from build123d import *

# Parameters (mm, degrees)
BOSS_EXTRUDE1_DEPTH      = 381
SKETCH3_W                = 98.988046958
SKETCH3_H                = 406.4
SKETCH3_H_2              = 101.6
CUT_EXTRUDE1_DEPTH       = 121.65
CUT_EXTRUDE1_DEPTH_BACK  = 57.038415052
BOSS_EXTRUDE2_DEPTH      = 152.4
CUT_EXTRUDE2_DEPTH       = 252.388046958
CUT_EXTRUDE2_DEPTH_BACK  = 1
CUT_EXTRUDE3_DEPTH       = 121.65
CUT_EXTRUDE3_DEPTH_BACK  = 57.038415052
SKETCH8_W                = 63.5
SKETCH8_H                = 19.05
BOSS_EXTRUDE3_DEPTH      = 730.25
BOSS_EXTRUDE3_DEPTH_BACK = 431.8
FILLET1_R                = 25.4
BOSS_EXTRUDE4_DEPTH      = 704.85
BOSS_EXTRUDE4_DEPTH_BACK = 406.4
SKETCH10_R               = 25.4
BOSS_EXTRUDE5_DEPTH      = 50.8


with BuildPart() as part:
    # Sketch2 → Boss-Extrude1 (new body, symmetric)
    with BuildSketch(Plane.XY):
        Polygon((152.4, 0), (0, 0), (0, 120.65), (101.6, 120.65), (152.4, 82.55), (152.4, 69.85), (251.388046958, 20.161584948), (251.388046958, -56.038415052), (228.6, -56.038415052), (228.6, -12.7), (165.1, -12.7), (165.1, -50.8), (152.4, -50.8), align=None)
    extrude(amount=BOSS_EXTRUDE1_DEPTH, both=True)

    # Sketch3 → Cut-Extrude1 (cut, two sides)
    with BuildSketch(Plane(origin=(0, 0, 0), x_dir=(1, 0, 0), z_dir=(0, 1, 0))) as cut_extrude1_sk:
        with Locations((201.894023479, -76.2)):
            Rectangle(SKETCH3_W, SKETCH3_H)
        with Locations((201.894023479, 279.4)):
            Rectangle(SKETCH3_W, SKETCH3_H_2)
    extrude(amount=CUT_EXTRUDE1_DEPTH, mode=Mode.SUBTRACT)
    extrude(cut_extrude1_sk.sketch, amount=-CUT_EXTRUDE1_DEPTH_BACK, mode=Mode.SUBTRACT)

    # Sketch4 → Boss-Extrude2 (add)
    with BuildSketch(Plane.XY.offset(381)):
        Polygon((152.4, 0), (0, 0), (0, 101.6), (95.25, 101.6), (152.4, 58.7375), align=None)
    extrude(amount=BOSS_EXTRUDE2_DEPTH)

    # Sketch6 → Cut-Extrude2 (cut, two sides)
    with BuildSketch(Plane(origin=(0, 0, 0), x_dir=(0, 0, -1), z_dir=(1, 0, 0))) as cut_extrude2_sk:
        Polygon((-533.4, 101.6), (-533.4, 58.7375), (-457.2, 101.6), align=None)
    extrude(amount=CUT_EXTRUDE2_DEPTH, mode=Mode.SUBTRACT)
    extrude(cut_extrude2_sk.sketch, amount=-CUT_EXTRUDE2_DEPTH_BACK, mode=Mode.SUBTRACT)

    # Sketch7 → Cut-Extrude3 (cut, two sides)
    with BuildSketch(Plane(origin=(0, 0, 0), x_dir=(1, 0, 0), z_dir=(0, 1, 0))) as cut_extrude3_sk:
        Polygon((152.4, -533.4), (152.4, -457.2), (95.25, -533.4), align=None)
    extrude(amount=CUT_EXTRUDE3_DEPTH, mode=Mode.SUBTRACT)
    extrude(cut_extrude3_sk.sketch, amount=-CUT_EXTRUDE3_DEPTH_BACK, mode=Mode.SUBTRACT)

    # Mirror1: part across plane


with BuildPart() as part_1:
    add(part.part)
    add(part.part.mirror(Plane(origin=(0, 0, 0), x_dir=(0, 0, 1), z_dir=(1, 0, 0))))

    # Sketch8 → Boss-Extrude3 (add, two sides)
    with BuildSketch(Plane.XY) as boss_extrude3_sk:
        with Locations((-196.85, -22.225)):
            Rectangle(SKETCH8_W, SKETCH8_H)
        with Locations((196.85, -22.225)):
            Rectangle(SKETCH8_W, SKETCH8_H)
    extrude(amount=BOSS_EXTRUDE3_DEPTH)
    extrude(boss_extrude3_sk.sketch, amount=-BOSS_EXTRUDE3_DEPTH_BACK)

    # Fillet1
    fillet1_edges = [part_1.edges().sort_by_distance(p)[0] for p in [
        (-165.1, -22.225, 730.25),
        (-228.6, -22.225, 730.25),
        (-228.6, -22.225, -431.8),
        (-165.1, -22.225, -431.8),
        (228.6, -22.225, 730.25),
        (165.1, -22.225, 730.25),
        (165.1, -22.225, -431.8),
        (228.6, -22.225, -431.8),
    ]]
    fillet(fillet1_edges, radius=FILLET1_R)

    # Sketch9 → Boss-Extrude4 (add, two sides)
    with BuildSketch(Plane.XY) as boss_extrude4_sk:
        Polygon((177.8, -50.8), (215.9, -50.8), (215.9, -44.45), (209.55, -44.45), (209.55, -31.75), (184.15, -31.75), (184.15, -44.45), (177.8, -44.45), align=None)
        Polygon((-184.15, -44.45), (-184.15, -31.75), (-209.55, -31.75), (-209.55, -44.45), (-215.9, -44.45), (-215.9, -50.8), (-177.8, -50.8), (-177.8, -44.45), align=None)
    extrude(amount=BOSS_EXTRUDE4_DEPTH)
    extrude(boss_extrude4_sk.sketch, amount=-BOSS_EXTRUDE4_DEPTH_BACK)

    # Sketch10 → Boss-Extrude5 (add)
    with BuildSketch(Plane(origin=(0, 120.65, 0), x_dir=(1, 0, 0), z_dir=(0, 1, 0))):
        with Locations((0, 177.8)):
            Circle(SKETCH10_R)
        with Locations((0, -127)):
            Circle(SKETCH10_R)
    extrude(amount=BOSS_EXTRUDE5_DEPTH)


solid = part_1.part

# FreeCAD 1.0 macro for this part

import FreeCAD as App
import Part
import Sketcher
Q = App.Units.Quantity


def edges_at(feature, points):
    """Names of the edges that pass closest to the given points."""
    edges = feature.Shape.Edges
    near = lambda p: min(range(len(edges)), key=lambda i: edges[i].distToShape(Part.Vertex(*p))[0])
    return sorted({f"Edge{near(p) + 1}" for p in points})

doc = App.newDocument("Part")
body = doc.addObject("PartDesign::Body", "Body")

sketch1 = doc.addObject("Sketcher::SketchObject", "Sketch")
body.addObject(sketch1)
sketch1.AttachmentSupport = (doc.XY_Plane, [""])
sketch1.MapMode = "FlatFace"
sketch1.addGeometry([
    Part.LineSegment(App.Vector(0, 0, 0), App.Vector(152, 0, 0)),
    Part.LineSegment(App.Vector(152, 0, 0), App.Vector(152, -51, 0)),
    Part.LineSegment(App.Vector(152, -51, 0), App.Vector(165, -51, 0)),
    Part.LineSegment(App.Vector(165, -51, 0), App.Vector(165, -13, 0)),
    Part.LineSegment(App.Vector(165, -13, 0), App.Vector(229, -13, 0)),
    Part.LineSegment(App.Vector(229, -13, 0), App.Vector(229, -56, 0)),
    Part.LineSegment(App.Vector(229, -56, 0), App.Vector(251, -56, 0)),
    Part.LineSegment(App.Vector(251, -56, 0), App.Vector(251, 20, 0)),
    Part.LineSegment(App.Vector(251, 20, 0), App.Vector(152, 70, 0)),
    Part.LineSegment(App.Vector(152, 70, 0), App.Vector(152, 83, 0)),
    Part.LineSegment(App.Vector(152, 83, 0), App.Vector(102, 121, 0)),
    Part.LineSegment(App.Vector(102, 121, 0), App.Vector(0, 121, 0)),
    Part.LineSegment(App.Vector(0, 121, 0), App.Vector(0, 0, 0)),
], False)
sketch1.addConstraint([
    Sketcher.Constraint("Coincident", 0, 2, 1, 1),
    Sketcher.Constraint("Coincident", 1, 2, 2, 1),
    Sketcher.Constraint("Coincident", 2, 2, 3, 1),
    Sketcher.Constraint("Coincident", 3, 2, 4, 1),
    Sketcher.Constraint("Coincident", 4, 2, 5, 1),
    Sketcher.Constraint("Coincident", 5, 2, 6, 1),
    Sketcher.Constraint("Coincident", 6, 2, 7, 1),
    Sketcher.Constraint("Coincident", 7, 2, 8, 1),
    Sketcher.Constraint("Coincident", 8, 2, 9, 1),
    Sketcher.Constraint("Coincident", 9, 2, 10, 1),
    Sketcher.Constraint("Coincident", 10, 2, 11, 1),
    Sketcher.Constraint("Coincident", 11, 2, 12, 1),
    Sketcher.Constraint("Coincident", 12, 2, 0, 1),
    Sketcher.Constraint("Horizontal", 0),
    Sketcher.Constraint("Vertical", 1),
    Sketcher.Constraint("Horizontal", 2),
    Sketcher.Constraint("Vertical", 3),
    Sketcher.Constraint("Horizontal", 4),
    Sketcher.Constraint("Vertical", 5),
    Sketcher.Constraint("Horizontal", 6),
    Sketcher.Constraint("Vertical", 7),
    Sketcher.Constraint("Vertical", 9),
    Sketcher.Constraint("Horizontal", 11),
    Sketcher.Constraint("Vertical", 12),
    Sketcher.Constraint("Coincident", 12, 2, -1, 1),
    Sketcher.Constraint("Vertical", 1, 2, 8, 2),
    Sketcher.Constraint("Equal", 2, 9),
    Sketcher.Constraint("DistanceX", 0, 1, 0, 2, Q("6 in")),
    Sketcher.Constraint("DistanceX", 11, 2, 11, 1, Q("4 in")),
    Sketcher.Constraint("DistanceY", 1, 2, 1, 1, Q("2 in")),
    Sketcher.Constraint("DistanceY", 7, 1, 7, 2, Q("3 in")),
    Sketcher.Constraint("DistanceX", 2, 1, 2, 2, Q("0.5 in")),
    Sketcher.Constraint("DistanceX", 4, 1, 4, 2, Q("2.5 in")),
    Sketcher.Constraint("DistanceY", 3, 1, 3, 2, Q("1.5 in")),
    Sketcher.Constraint("DistanceY", 8, 2, 10, 2, Q("2 in")),
    Sketcher.Constraint("DistanceY", 12, 2, 12, 1, Q("4.75 in")),
    Sketcher.Constraint("DistanceX", 6, 1, 6, 2, Q("22.788047 mm")),
    Sketcher.Constraint("DistanceY", 5, 2, 5, 1, Q("43.338415 mm")),
])
pad1 = doc.addObject("PartDesign::Pad", "Pad")
body.addObject(pad1)
pad1.Profile = sketch1
pad1.Length = Q("30 in")
pad1.Midplane = True

sketch2 = doc.addObject("Sketcher::SketchObject", "Sketch001")
body.addObject(sketch2)
sketch2.AttachmentSupport = (doc.XZ_Plane, [""])
sketch2.MapMode = "FlatFace"
sketch2.addGeometry([
    Part.LineSegment(App.Vector(152, -127, 0), App.Vector(152, 279, 0)),
    Part.LineSegment(App.Vector(152, 279, 0), App.Vector(251, 279, 0)),
    Part.LineSegment(App.Vector(251, 279, 0), App.Vector(251, -127, 0)),
    Part.LineSegment(App.Vector(251, -127, 0), App.Vector(152, -127, 0)),
    Part.LineSegment(App.Vector(152, -330, 0), App.Vector(152, -229, 0)),
    Part.LineSegment(App.Vector(152, -229, 0), App.Vector(251, -229, 0)),
    Part.LineSegment(App.Vector(251, -229, 0), App.Vector(251, -330, 0)),
    Part.LineSegment(App.Vector(251, -330, 0), App.Vector(152, -330, 0)),
], False)
sketch2.addConstraint([
    Sketcher.Constraint("Coincident", 0, 2, 1, 1),
    Sketcher.Constraint("Coincident", 1, 2, 2, 1),
    Sketcher.Constraint("Coincident", 2, 2, 3, 1),
    Sketcher.Constraint("Coincident", 3, 2, 0, 1),
    Sketcher.Constraint("Coincident", 4, 2, 5, 1),
    Sketcher.Constraint("Coincident", 5, 2, 6, 1),
    Sketcher.Constraint("Coincident", 6, 2, 7, 1),
    Sketcher.Constraint("Coincident", 7, 2, 4, 1),
    Sketcher.Constraint("Vertical", 0),
    Sketcher.Constraint("Horizontal", 1),
    Sketcher.Constraint("Vertical", 2),
    Sketcher.Constraint("Horizontal", 3),
    Sketcher.Constraint("Vertical", 4),
    Sketcher.Constraint("Horizontal", 5),
    Sketcher.Constraint("Vertical", 6),
    Sketcher.Constraint("Horizontal", 7),
    Sketcher.Constraint("Vertical", 3, 2, 4, 2),
    Sketcher.Constraint("Vertical", 2, 2, 5, 2),
    Sketcher.Constraint("DistanceY", 0, 1, 0, 2, Q("16 in")),
    Sketcher.Constraint("DistanceY", 4, 1, 4, 2, Q("4 in")),
    Sketcher.Constraint("DistanceX", -1, 1, 0, 2, Q("6 in")),
    Sketcher.Constraint("DistanceY", -1, 1, 0, 2, Q("11 in")),
    Sketcher.Constraint("DistanceY", 4, 2, -1, 1, Q("9 in")),
    Sketcher.Constraint("DistanceX", 1, 1, 1, 2, Q("98.988047 mm")),
])
pocket1 = doc.addObject("PartDesign::Pocket", "Pocket")
body.addObject(pocket1)
pocket1.Profile = sketch2
pocket1.Type = "ThroughAll"
pocket1.Midplane = True

sketch3 = doc.addObject("Sketcher::SketchObject", "Sketch002")
body.addObject(sketch3)
sketch3.AttachmentSupport = (doc.XY_Plane, [""])
sketch3.MapMode = "FlatFace"
sketch3.AttachmentOffset = App.Placement(App.Vector(0, 0, 15 * 25.4), App.Rotation())
sketch3.addGeometry([
    Part.LineSegment(App.Vector(0, 0, 0), App.Vector(152, 0, 0)),
    Part.LineSegment(App.Vector(152, 0, 0), App.Vector(152, 59, 0)),
    Part.LineSegment(App.Vector(152, 59, 0), App.Vector(95, 102, 0)),
    Part.LineSegment(App.Vector(95, 102, 0), App.Vector(0, 102, 0)),
    Part.LineSegment(App.Vector(0, 102, 0), App.Vector(0, 0, 0)),
], False)
sketch3.addConstraint([
    Sketcher.Constraint("Coincident", 0, 2, 1, 1),
    Sketcher.Constraint("Coincident", 1, 2, 2, 1),
    Sketcher.Constraint("Coincident", 2, 2, 3, 1),
    Sketcher.Constraint("Coincident", 3, 2, 4, 1),
    Sketcher.Constraint("Coincident", 4, 2, 0, 1),
    Sketcher.Constraint("Horizontal", 0),
    Sketcher.Constraint("Vertical", 1),
    Sketcher.Constraint("Horizontal", 3),
    Sketcher.Constraint("Vertical", 4),
    Sketcher.Constraint("Coincident", 4, 2, -1, 1),
    Sketcher.Constraint("DistanceX", 0, 1, 0, 2, Q("6 in")),
    Sketcher.Constraint("DistanceY", 4, 2, 4, 1, Q("4 in")),
    Sketcher.Constraint("DistanceX", 3, 2, 3, 1, Q("3.75 in")),
    Sketcher.Constraint("DistanceY", 1, 1, 1, 2, Q("2.3125 in")),
])
pad2 = doc.addObject("PartDesign::Pad", "Pad001")
body.addObject(pad2)
pad2.Profile = sketch3
pad2.Length = Q("6 in")

sketch4 = doc.addObject("Sketcher::SketchObject", "Sketch003")
body.addObject(sketch4)
sketch4.AttachmentSupport = (doc.YZ_Plane, [""])
sketch4.MapMode = "FlatFace"
sketch4.addGeometry([
    Part.LineSegment(App.Vector(102, 533, 0), App.Vector(59, 533, 0)),
    Part.LineSegment(App.Vector(59, 533, 0), App.Vector(102, 457, 0)),
    Part.LineSegment(App.Vector(102, 457, 0), App.Vector(102, 533, 0)),
], False)
sketch4.addConstraint([
    Sketcher.Constraint("Coincident", 0, 2, 1, 1),
    Sketcher.Constraint("Coincident", 1, 2, 2, 1),
    Sketcher.Constraint("Coincident", 2, 2, 0, 1),
    Sketcher.Constraint("Horizontal", 0),
    Sketcher.Constraint("Vertical", 2),
    Sketcher.Constraint("DistanceY", 2, 1, 2, 2, Q("3 in")),
    Sketcher.Constraint("DistanceY", -1, 1, 0, 2, Q("21 in")),
    Sketcher.Constraint("DistanceX", -1, 1, 1, 2, Q("4 in")),
    Sketcher.Constraint("DistanceX", 0, 2, 0, 1, Q("1.6875 in")),
])
pocket2 = doc.addObject("PartDesign::Pocket", "Pocket001")
body.addObject(pocket2)
pocket2.Profile = sketch4
pocket2.Type = "ThroughAll"
pocket2.Midplane = True

sketch5 = doc.addObject("Sketcher::SketchObject", "Sketch004")
body.addObject(sketch5)
sketch5.AttachmentSupport = (doc.XZ_Plane, [""])
sketch5.MapMode = "FlatFace"
sketch5.addGeometry([
    Part.LineSegment(App.Vector(152, 533, 0), App.Vector(152, 457, 0)),
    Part.LineSegment(App.Vector(152, 457, 0), App.Vector(95, 533, 0)),
    Part.LineSegment(App.Vector(95, 533, 0), App.Vector(152, 533, 0)),
], False)
sketch5.addConstraint([
    Sketcher.Constraint("Coincident", 0, 2, 1, 1),
    Sketcher.Constraint("Coincident", 1, 2, 2, 1),
    Sketcher.Constraint("Coincident", 2, 2, 0, 1),
    Sketcher.Constraint("Vertical", 0),
    Sketcher.Constraint("Horizontal", 2),
    Sketcher.Constraint("DistanceY", 0, 2, 0, 1, Q("3 in")),
    Sketcher.Constraint("DistanceX", -1, 1, 0, 2, Q("6 in")),
    Sketcher.Constraint("DistanceY", -1, 1, 0, 2, Q("18 in")),
    Sketcher.Constraint("DistanceX", 2, 1, 2, 2, Q("2.25 in")),
])
pocket3 = doc.addObject("PartDesign::Pocket", "Pocket002")
body.addObject(pocket3)
pocket3.Profile = sketch5
pocket3.Type = "ThroughAll"
pocket3.Midplane = True
body2 = doc.addObject("PartDesign::Body", "Body001")
doc.recompute()

body2.BaseFeature = body
doc.recompute()

mirroring = doc.addObject("Part::Mirroring", "Mirroring")
mirroring.Source = body
mirroring.Base = App.Vector(0, 0, 0)
mirroring.Normal = App.Vector(1, 0, 0)
body3 = doc.addObject("PartDesign::Body", "Body002")
body3.BaseFeature = mirroring
boolean = doc.addObject("PartDesign::Boolean", "Boolean")
body2.addObject(boolean)
boolean.Type = "Fuse"
boolean.addObjects([body3])
doc.recompute()

sketch6 = doc.addObject("Sketcher::SketchObject", "Sketch005")
body2.addObject(sketch6)
sketch6.AttachmentSupport = (doc.getObject("XY_Plane001"), [""])
sketch6.MapMode = "FlatFace"
sketch6.addGeometry([
    Part.LineSegment(App.Vector(-229, -13, 0), App.Vector(-229, -32, 0)),
    Part.LineSegment(App.Vector(-229, -32, 0), App.Vector(-165, -32, 0)),
    Part.LineSegment(App.Vector(-165, -32, 0), App.Vector(-165, -13, 0)),
    Part.LineSegment(App.Vector(-165, -13, 0), App.Vector(-229, -13, 0)),
    Part.LineSegment(App.Vector(165, -13, 0), App.Vector(165, -32, 0)),
    Part.LineSegment(App.Vector(165, -32, 0), App.Vector(229, -32, 0)),
    Part.LineSegment(App.Vector(229, -32, 0), App.Vector(229, -13, 0)),
    Part.LineSegment(App.Vector(229, -13, 0), App.Vector(165, -13, 0)),
], False)
sketch6.addConstraint([
    Sketcher.Constraint("Coincident", 0, 2, 1, 1),
    Sketcher.Constraint("Coincident", 1, 2, 2, 1),
    Sketcher.Constraint("Coincident", 2, 2, 3, 1),
    Sketcher.Constraint("Coincident", 3, 2, 0, 1),
    Sketcher.Constraint("Coincident", 4, 2, 5, 1),
    Sketcher.Constraint("Coincident", 5, 2, 6, 1),
    Sketcher.Constraint("Coincident", 6, 2, 7, 1),
    Sketcher.Constraint("Coincident", 7, 2, 4, 1),
    Sketcher.Constraint("Vertical", 0),
    Sketcher.Constraint("Horizontal", 1),
    Sketcher.Constraint("Vertical", 2),
    Sketcher.Constraint("Horizontal", 3),
    Sketcher.Constraint("Vertical", 4),
    Sketcher.Constraint("Horizontal", 5),
    Sketcher.Constraint("Vertical", 6),
    Sketcher.Constraint("Horizontal", 7),
    Sketcher.Constraint("Symmetric", 1, 2, 4, 2, -2),
    Sketcher.Constraint("Symmetric", 3, 2, 6, 2, -2),
    Sketcher.Constraint("DistanceX", 1, 1, 1, 2, Q("2.5 in")),
    Sketcher.Constraint("DistanceX", 0, 2, -1, 1, Q("9 in")),
    Sketcher.Constraint("DistanceY", 0, 2, 0, 1, Q("0.75 in")),
    Sketcher.Constraint("DistanceY", 2, 2, -1, 1, Q("0.5 in")),
])
pad3 = doc.addObject("PartDesign::Pad", "Pad002")
body2.addObject(pad3)
pad3.Profile = sketch6
pad3.Type = "TwoLengths"
pad3.Length = Q("28.75 in")
pad3.Length2 = Q("17 in")
doc.recompute()

fillet = doc.addObject("PartDesign::Fillet", "Fillet")
body2.addObject(fillet)
fillet.Base = (pad3, edges_at(pad3, [
    (-165.1, -22.225, 730.25),
    (-228.6, -22.225, 730.25),
    (-228.6, -22.225, -431.8),
    (-165.1, -22.225, -431.8),
    (228.6, -22.225, 730.25),
    (165.1, -22.225, 730.25),
    (165.1, -22.225, -431.8),
    (228.6, -22.225, -431.8),
]))
fillet.Radius = Q("1 in")

sketch7 = doc.addObject("Sketcher::SketchObject", "Sketch006")
body2.addObject(sketch7)
sketch7.AttachmentSupport = (doc.getObject("XY_Plane001"), [""])
sketch7.MapMode = "FlatFace"
sketch7.addGeometry([
    Part.LineSegment(App.Vector(178, -51, 0), App.Vector(216, -51, 0)),
    Part.LineSegment(App.Vector(216, -51, 0), App.Vector(216, -44, 0)),
    Part.LineSegment(App.Vector(216, -44, 0), App.Vector(210, -44, 0)),
    Part.LineSegment(App.Vector(210, -44, 0), App.Vector(210, -32, 0)),
    Part.LineSegment(App.Vector(210, -32, 0), App.Vector(184, -32, 0)),
    Part.LineSegment(App.Vector(184, -32, 0), App.Vector(184, -44, 0)),
    Part.LineSegment(App.Vector(184, -44, 0), App.Vector(178, -44, 0)),
    Part.LineSegment(App.Vector(178, -44, 0), App.Vector(178, -51, 0)),
    Part.LineSegment(App.Vector(-184, -44, 0), App.Vector(-184, -32, 0)),
    Part.LineSegment(App.Vector(-184, -32, 0), App.Vector(-210, -32, 0)),
    Part.LineSegment(App.Vector(-210, -32, 0), App.Vector(-210, -44, 0)),
    Part.LineSegment(App.Vector(-210, -44, 0), App.Vector(-216, -44, 0)),
    Part.LineSegment(App.Vector(-216, -44, 0), App.Vector(-216, -51, 0)),
    Part.LineSegment(App.Vector(-216, -51, 0), App.Vector(-178, -51, 0)),
    Part.LineSegment(App.Vector(-178, -51, 0), App.Vector(-178, -44, 0)),
    Part.LineSegment(App.Vector(-178, -44, 0), App.Vector(-184, -44, 0)),
], False)
sketch7.addConstraint([
    Sketcher.Constraint("Coincident", 0, 2, 1, 1),
    Sketcher.Constraint("Coincident", 1, 2, 2, 1),
    Sketcher.Constraint("Coincident", 2, 2, 3, 1),
    Sketcher.Constraint("Coincident", 3, 2, 4, 1),
    Sketcher.Constraint("Coincident", 4, 2, 5, 1),
    Sketcher.Constraint("Coincident", 5, 2, 6, 1),
    Sketcher.Constraint("Coincident", 6, 2, 7, 1),
    Sketcher.Constraint("Coincident", 7, 2, 0, 1),
    Sketcher.Constraint("Coincident", 8, 2, 9, 1),
    Sketcher.Constraint("Coincident", 9, 2, 10, 1),
    Sketcher.Constraint("Coincident", 10, 2, 11, 1),
    Sketcher.Constraint("Coincident", 11, 2, 12, 1),
    Sketcher.Constraint("Coincident", 12, 2, 13, 1),
    Sketcher.Constraint("Coincident", 13, 2, 14, 1),
    Sketcher.Constraint("Coincident", 14, 2, 15, 1),
    Sketcher.Constraint("Coincident", 15, 2, 8, 1),
    Sketcher.Constraint("Horizontal", 0),
    Sketcher.Constraint("Vertical", 1),
    Sketcher.Constraint("Horizontal", 2),
    Sketcher.Constraint("Vertical", 3),
    Sketcher.Constraint("Horizontal", 4),
    Sketcher.Constraint("Vertical", 5),
    Sketcher.Constraint("Horizontal", 6),
    Sketcher.Constraint("Vertical", 7),
    Sketcher.Constraint("Vertical", 8),
    Sketcher.Constraint("Horizontal", 9),
    Sketcher.Constraint("Vertical", 10),
    Sketcher.Constraint("Horizontal", 11),
    Sketcher.Constraint("Vertical", 12),
    Sketcher.Constraint("Horizontal", 13),
    Sketcher.Constraint("Vertical", 14),
    Sketcher.Constraint("Horizontal", 15),
    Sketcher.Constraint("Symmetric", 4, 2, 8, 2, -2),
    Sketcher.Constraint("Symmetric", 2, 2, 10, 2, -2),
    Sketcher.Constraint("Symmetric", 0, 2, 12, 2, -2),
    Sketcher.Constraint("Symmetric", 6, 2, 14, 2, -2),
    Sketcher.Constraint("Horizontal", 2, 2, 5, 2),
    Sketcher.Constraint("Equal", 2, 6),
    Sketcher.Constraint("Equal", 15, 1),
    Sketcher.Constraint("DistanceX", 4, 2, 4, 1, Q("1 in")),
    Sketcher.Constraint("DistanceX", 0, 1, 0, 2, Q("1.5 in")),
    Sketcher.Constraint("DistanceY", 3, 1, 3, 2, Q("0.5 in")),
    Sketcher.Constraint("DistanceY", 0, 2, -1, 1, Q("2 in")),
    Sketcher.Constraint("DistanceX", -1, 1, 6, 2, Q("7 in")),
])
pad4 = doc.addObject("PartDesign::Pad", "Pad003")
body2.addObject(pad4)
pad4.Profile = sketch7
pad4.Type = "TwoLengths"
pad4.Length = Q("27.75 in")
pad4.Length2 = Q("16 in")

sketch8 = doc.addObject("Sketcher::SketchObject", "Sketch007")
body2.addObject(sketch8)
sketch8.AttachmentSupport = (doc.getObject("XZ_Plane001"), [""])
sketch8.MapMode = "FlatFace"
sketch8.AttachmentOffset = App.Placement(App.Vector(0, 0, -4.75 * 25.4), App.Rotation())
sketch8.addGeometry([
    Part.Circle(App.Vector(0, -178, 0), App.Vector(0, 0, 1), 25),
    Part.Circle(App.Vector(0, 127, 0), App.Vector(0, 0, 1), 25),
], False)
sketch8.addConstraint([
    Sketcher.Constraint("Equal", 0, 1),
    Sketcher.Constraint("PointOnObject", 0, 3, -2),
    Sketcher.Constraint("PointOnObject", 1, 3, -2),
    Sketcher.Constraint("Diameter", 0, Q("2 in")),
    Sketcher.Constraint("DistanceY", 0, 3, -1, 1, Q("7 in")),
    Sketcher.Constraint("DistanceY", -1, 1, 1, 3, Q("5 in")),
])
pad5 = doc.addObject("PartDesign::Pad", "Pad004")
body2.addObject(pad5)
pad5.Profile = sketch8
pad5.Length = Q("2 in")
pad5.Reversed = True
mirroring.Visibility = False

doc.recompute()
